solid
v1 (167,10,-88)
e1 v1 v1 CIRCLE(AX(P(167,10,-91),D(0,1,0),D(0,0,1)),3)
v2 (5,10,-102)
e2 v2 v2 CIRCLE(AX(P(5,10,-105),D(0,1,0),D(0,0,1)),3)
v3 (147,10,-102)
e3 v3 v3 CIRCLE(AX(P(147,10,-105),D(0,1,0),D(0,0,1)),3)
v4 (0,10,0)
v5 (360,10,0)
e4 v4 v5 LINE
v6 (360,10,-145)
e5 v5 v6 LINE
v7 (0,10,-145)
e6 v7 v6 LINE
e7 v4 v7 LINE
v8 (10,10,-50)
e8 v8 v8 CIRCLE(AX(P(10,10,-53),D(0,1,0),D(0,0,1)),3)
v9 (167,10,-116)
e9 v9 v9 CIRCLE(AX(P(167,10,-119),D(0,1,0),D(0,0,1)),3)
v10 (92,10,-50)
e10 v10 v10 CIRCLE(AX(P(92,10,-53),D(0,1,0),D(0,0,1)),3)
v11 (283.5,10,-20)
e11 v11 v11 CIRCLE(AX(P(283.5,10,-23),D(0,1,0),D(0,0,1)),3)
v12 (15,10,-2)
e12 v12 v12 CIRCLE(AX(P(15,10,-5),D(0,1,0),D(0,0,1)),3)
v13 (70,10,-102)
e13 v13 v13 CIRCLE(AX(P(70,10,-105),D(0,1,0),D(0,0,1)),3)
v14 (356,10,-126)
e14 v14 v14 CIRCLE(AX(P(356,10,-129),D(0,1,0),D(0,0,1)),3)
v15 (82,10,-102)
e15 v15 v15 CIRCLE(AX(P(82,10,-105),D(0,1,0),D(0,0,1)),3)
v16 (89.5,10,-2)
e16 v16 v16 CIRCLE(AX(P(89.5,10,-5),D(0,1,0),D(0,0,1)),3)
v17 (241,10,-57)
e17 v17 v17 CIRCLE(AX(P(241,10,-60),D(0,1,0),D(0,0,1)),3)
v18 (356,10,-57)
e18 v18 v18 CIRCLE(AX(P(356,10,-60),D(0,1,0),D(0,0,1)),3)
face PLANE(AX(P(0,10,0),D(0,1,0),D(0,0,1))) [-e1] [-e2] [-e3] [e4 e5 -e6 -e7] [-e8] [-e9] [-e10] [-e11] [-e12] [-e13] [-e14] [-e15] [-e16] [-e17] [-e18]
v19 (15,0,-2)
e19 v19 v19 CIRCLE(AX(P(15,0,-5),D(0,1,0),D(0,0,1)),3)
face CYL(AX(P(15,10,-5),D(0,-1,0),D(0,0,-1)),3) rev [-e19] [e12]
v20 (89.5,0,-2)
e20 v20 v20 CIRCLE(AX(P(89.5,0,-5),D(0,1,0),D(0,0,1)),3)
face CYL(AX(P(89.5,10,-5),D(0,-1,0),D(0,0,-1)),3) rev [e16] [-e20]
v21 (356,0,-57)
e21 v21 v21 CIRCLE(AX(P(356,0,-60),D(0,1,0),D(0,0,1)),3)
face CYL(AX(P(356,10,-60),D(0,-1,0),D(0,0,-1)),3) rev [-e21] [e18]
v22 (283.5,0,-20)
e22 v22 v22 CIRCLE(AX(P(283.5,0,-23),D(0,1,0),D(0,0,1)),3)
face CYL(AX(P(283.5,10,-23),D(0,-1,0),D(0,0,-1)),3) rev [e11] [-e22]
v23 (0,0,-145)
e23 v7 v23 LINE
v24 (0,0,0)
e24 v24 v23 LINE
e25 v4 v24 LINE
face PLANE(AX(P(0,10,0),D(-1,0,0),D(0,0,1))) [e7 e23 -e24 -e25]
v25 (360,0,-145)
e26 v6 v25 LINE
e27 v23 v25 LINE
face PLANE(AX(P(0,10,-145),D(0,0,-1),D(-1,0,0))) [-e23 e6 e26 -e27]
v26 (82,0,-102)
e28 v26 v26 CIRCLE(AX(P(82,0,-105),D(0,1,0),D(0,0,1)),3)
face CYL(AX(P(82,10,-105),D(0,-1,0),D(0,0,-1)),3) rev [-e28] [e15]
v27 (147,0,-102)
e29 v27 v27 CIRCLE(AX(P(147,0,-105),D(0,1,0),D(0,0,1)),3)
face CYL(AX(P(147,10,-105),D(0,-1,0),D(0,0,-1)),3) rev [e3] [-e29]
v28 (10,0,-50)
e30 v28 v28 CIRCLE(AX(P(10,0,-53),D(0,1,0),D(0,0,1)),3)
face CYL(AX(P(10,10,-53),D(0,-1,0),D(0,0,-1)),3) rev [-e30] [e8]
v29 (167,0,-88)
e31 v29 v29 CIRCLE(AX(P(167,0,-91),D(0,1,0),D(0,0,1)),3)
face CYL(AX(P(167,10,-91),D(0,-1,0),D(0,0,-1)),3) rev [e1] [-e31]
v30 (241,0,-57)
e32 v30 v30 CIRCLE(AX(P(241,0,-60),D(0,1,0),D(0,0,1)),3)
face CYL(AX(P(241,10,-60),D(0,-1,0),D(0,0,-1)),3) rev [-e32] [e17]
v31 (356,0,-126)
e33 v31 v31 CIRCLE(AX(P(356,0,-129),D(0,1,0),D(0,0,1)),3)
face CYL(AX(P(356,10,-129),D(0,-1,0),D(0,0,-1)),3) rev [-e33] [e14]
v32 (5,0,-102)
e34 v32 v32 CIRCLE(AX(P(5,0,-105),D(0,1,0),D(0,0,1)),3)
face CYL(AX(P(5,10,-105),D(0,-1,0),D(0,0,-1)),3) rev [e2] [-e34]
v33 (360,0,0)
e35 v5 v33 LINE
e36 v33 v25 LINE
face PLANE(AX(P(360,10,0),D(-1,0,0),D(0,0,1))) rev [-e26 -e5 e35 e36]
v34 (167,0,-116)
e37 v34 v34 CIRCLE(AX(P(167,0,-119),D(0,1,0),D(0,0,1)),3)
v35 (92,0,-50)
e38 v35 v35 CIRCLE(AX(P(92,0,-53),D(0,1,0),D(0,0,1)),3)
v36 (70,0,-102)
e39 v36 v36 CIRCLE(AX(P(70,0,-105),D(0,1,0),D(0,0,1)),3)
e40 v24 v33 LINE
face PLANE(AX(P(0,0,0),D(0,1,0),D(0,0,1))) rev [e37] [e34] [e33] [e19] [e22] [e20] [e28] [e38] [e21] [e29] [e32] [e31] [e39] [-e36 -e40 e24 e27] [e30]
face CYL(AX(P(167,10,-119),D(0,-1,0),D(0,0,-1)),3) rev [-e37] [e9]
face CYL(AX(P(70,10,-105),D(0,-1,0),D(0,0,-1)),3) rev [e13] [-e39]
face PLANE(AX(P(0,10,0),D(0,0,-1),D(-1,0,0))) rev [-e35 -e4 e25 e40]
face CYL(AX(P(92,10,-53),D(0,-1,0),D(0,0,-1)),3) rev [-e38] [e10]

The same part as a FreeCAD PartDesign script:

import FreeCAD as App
import Part
import Sketcher

V = App.Vector

doc = App.newDocument("Part")
body = doc.addObject("PartDesign::Body", "Body")

# Sketch on XZ plane
sketch1 = body.newObject("Sketcher::SketchObject", "Sketch")
sketch1.AttachmentSupport = (doc.getObject("XZ_Plane"), [""])
sketch1.MapMode = "FlatFace"
sketch1.addGeometry(Part.LineSegment(V(0, -145, 0), V(0, 0, 0)), False)
sketch1.addGeometry(Part.LineSegment(V(0, 0, 0), V(360, 0, 0)), False)
sketch1.addGeometry(Part.LineSegment(V(360, 0, 0), V(360, -145, 0)), False)
sketch1.addGeometry(Part.LineSegment(V(360, -145, 0), V(0, -145, 0)), False)
sketch1.addGeometry(Part.Circle(V(15, -5, 0), V(0, 0, 1), 3), False)
sketch1.addGeometry(Part.Circle(V(89.5, -5, 0), V(0, 0, 1), 3), False)
sketch1.addGeometry(Part.Circle(V(10, -53, 0), V(0, 0, 1), 3), False)
sketch1.addGeometry(Part.Circle(V(92, -53, 0), V(0, 0, 1), 3), False)
sketch1.addGeometry(Part.Circle(V(283.5, -23, 0), V(0, 0, 1), 3), False)
sketch1.addGeometry(Part.Circle(V(241, -60, 0), V(0, 0, 1), 3), False)
sketch1.addGeometry(Part.Circle(V(356, -60, 0), V(0, 0, 1), 3), False)
sketch1.addGeometry(Part.Circle(V(167, -91, 0), V(0, 0, 1), 3), False)
sketch1.addGeometry(Part.Circle(V(5, -105, 0), V(0, 0, 1), 3), False)
sketch1.addGeometry(Part.Circle(V(70, -105, 0), V(0, 0, 1), 3), False)
sketch1.addGeometry(Part.Circle(V(82, -105, 0), V(0, 0, 1), 3), False)
sketch1.addGeometry(Part.Circle(V(147, -105, 0), V(0, 0, 1), 3), False)
sketch1.addGeometry(Part.Circle(V(167, -119, 0), V(0, 0, 1), 3), False)
sketch1.addGeometry(Part.Circle(V(356, -129, 0), V(0, 0, 1), 3), False)
sketch1.addConstraint(Sketcher.Constraint("Coincident", 0, 2, 1, 1))
sketch1.addConstraint(Sketcher.Constraint("Coincident", 1, 2, 2, 1))
sketch1.addConstraint(Sketcher.Constraint("Coincident", 2, 2, 3, 1))
sketch1.addConstraint(Sketcher.Constraint("Coincident", 3, 2, 0, 1))
sketch1.addConstraint(Sketcher.Constraint("Vertical", 0))
sketch1.addConstraint(Sketcher.Constraint("Horizontal", 1))
sketch1.addConstraint(Sketcher.Constraint("Vertical", 2))
sketch1.addConstraint(Sketcher.Constraint("Horizontal", 3))
sketch1.addConstraint(Sketcher.Constraint("Coincident", 0, 2, -1, 1))
sketch1.addConstraint(Sketcher.Constraint("Equal", 4, 5))
sketch1.addConstraint(Sketcher.Constraint("Equal", 5, 6))
sketch1.addConstraint(Sketcher.Constraint("Equal", 6, 7))
sketch1.addConstraint(Sketcher.Constraint("Equal", 7, 8))
sketch1.addConstraint(Sketcher.Constraint("Equal", 8, 9))
sketch1.addConstraint(Sketcher.Constraint("Equal", 9, 10))
sketch1.addConstraint(Sketcher.Constraint("Equal", 10, 11))
sketch1.addConstraint(Sketcher.Constraint("Equal", 11, 12))
sketch1.addConstraint(Sketcher.Constraint("Equal", 12, 13))
sketch1.addConstraint(Sketcher.Constraint("Equal", 13, 14))
sketch1.addConstraint(Sketcher.Constraint("Equal", 14, 15))
sketch1.addConstraint(Sketcher.Constraint("Equal", 15, 16))
sketch1.addConstraint(Sketcher.Constraint("Equal", 16, 17))
sketch1.addConstraint(Sketcher.Constraint("Horizontal", 4, 3, 5, 3))
sketch1.addConstraint(Sketcher.Constraint("Horizontal", 6, 3, 7, 3))
sketch1.addConstraint(Sketcher.Constraint("Horizontal", 9, 3, 10, 3))
sketch1.addConstraint(Sketcher.Constraint("Horizontal", 12, 3, 13, 3))
sketch1.addConstraint(Sketcher.Constraint("Horizontal", 13, 3, 14, 3))
sketch1.addConstraint(Sketcher.Constraint("Horizontal", 14, 3, 15, 3))
sketch1.addConstraint(Sketcher.Constraint("Vertical", 11, 3, 16, 3))
sketch1.addConstraint(Sketcher.Constraint("Vertical", 10, 3, 17, 3))
sketch1.addConstraint(Sketcher.Constraint("Diameter", 4, 6.0))
sketch1.addConstraint(Sketcher.Constraint("DistanceX", 1, 1, 1, 2, 360.0))
sketch1.addConstraint(Sketcher.Constraint("DistanceY", 0, 1, 0, 2, 145.0))
sketch1.addConstraint(Sketcher.Constraint("DistanceX", -1, 1, 4, 3, 15.0))
sketch1.addConstraint(Sketcher.Constraint("DistanceY", 4, 3, -1, 1, 5.0))
sketch1.addConstraint(Sketcher.Constraint("DistanceX", -1, 1, 6, 3, 10.0))
sketch1.addConstraint(Sketcher.Constraint("DistanceY", 6, 3, -1, 1, 53.0))
sketch1.addConstraint(Sketcher.Constraint("DistanceX", -1, 1, 7, 3, 92.0))
sketch1.addConstraint(Sketcher.Constraint("DistanceY", 8, 3, -1, 1, 23.0))
sketch1.addConstraint(Sketcher.Constraint("DistanceX", -1, 1, 9, 3, 241.0))
sketch1.addConstraint(Sketcher.Constraint("DistanceY", 9, 3, -1, 1, 60.0))
sketch1.addConstraint(Sketcher.Constraint("DistanceX", -1, 1, 10, 3, 356.0))
sketch1.addConstraint(Sketcher.Constraint("DistanceX", -1, 1, 11, 3, 167.0))
sketch1.addConstraint(Sketcher.Constraint("DistanceY", 11, 3, -1, 1, 91.0))
sketch1.addConstraint(Sketcher.Constraint("DistanceX", -1, 1, 12, 3, 5.0))
sketch1.addConstraint(Sketcher.Constraint("DistanceY", 12, 3, -1, 1, 105.0))
sketch1.addConstraint(Sketcher.Constraint("DistanceX", -1, 1, 13, 3, 70.0))
sketch1.addConstraint(Sketcher.Constraint("DistanceX", -1, 1, 14, 3, 82.0))
sketch1.addConstraint(Sketcher.Constraint("DistanceX", -1, 1, 15, 3, 147.0))
sketch1.addConstraint(Sketcher.Constraint("DistanceY", 16, 3, -1, 1, 119.0))
sketch1.addConstraint(Sketcher.Constraint("DistanceY", 17, 3, -1, 1, 129.0))
sketch1.addConstraint(Sketcher.Constraint("DistanceX", 5, 3, 8, 3, 194.0))
sketch1.addConstraint(Sketcher.Constraint("DistanceX", -1, 1, 5, 3, 89.5))
pad1 = body.newObject("PartDesign::Pad", "Pad")
pad1.Profile = sketch1
pad1.Length = 10
pad1.Reversed = True

doc.recompute()
